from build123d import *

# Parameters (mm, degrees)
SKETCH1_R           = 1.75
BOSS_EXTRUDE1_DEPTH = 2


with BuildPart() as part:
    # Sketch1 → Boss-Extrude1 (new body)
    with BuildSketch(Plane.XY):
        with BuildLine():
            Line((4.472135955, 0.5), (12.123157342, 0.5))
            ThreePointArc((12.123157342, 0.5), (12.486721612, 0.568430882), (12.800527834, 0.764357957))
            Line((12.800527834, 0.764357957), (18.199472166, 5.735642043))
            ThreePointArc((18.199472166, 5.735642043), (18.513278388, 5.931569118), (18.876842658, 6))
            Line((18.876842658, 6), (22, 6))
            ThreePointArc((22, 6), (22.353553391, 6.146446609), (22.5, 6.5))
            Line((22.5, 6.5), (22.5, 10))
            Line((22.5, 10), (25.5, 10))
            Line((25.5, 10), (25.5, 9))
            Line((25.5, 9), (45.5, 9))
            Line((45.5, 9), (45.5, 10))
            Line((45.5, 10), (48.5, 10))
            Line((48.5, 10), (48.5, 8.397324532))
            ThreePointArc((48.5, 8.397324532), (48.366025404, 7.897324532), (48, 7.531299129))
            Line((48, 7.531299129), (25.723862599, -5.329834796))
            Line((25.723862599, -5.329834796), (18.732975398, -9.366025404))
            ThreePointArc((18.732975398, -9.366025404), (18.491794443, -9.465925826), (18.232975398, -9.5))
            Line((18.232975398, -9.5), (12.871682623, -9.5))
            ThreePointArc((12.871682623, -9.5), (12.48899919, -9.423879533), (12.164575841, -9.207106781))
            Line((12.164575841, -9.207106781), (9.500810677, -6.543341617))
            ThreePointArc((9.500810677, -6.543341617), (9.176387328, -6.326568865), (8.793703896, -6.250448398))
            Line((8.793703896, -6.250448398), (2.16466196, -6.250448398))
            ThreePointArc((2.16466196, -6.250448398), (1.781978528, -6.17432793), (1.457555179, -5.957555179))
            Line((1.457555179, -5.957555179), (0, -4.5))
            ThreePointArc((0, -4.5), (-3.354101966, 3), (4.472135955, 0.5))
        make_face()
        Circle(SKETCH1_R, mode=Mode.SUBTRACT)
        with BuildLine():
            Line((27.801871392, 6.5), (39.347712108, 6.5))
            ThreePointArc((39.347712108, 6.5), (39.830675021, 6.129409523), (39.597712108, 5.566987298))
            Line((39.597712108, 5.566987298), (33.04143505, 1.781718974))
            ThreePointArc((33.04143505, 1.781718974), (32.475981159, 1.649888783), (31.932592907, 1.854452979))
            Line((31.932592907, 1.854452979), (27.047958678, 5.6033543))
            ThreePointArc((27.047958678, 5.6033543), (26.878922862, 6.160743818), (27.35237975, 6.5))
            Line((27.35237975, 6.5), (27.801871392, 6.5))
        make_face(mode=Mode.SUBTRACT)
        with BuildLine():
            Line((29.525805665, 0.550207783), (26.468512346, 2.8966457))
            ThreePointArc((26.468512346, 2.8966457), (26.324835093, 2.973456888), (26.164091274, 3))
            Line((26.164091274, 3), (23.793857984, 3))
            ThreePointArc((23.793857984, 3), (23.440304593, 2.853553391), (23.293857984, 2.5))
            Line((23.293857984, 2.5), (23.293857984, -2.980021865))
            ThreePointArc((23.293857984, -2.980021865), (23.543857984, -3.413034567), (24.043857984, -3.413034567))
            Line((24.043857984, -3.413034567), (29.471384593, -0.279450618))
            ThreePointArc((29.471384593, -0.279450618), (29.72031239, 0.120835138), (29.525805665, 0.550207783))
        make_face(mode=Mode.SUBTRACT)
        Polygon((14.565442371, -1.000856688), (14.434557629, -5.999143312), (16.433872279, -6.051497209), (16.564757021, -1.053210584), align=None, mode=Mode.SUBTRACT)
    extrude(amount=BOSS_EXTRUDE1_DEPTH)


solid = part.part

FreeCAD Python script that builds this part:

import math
import FreeCAD as App
import Part
import Sketcher
Q = App.Units.Quantity


def add_polygon(sketch, points):
    """Adds a closed chain of lines whose ends are joined by coincident constraints."""
    first, n = sketch.GeometryCount, len(points)
    for a, b in zip(points, points[1:] + points[:1]):
        sketch.addGeometry(Part.LineSegment(App.Vector(*a, 0), App.Vector(*b, 0)), False)
    for i in range(n):
        sketch.addConstraint(Sketcher.Constraint("Coincident", first + i, 2, first + (i + 1) % n, 1))

doc = App.newDocument("Part")
body = doc.addObject("PartDesign::Body", "Body")

# Sketch on XY plane
sketch1 = body.newObject("Sketcher::SketchObject", "Sketch")
sketch1.AttachmentSupport = (doc.getObject("XY_Plane"), [""])
sketch1.MapMode = "FlatFace"
sketch1.addGeometry(Part.LineSegment(App.Vector(12.12, 0.5, 0), App.Vector(4.47, 0.5, 0)), False)  # 0
sketch1.addGeometry(Part.ArcOfCircle(Part.Circle(App.Vector(0, 0, 0), App.Vector(0, 0, 1), 4.5), math.radians(6), math.radians(270)), False)  # 1
sketch1.addGeometry(Part.LineSegment(App.Vector(0, -4.5, 0), App.Vector(1.46, -5.96, 0)), False)  # 2
sketch1.addGeometry(Part.ArcOfCircle(Part.Circle(App.Vector(2.16, -5.25, 0), App.Vector(0, 0, 1), 1), math.radians(-135), math.radians(-90)), False)  # 3
sketch1.addGeometry(Part.LineSegment(App.Vector(2.16, -6.25, 0), App.Vector(8.79, -6.25, 0)), False)  # 4
sketch1.addGeometry(Part.ArcOfCircle(Part.Circle(App.Vector(8.79, -7.25, 0), App.Vector(0, 0, 1), 1), math.radians(45), math.radians(90)), False)  # 5
sketch1.addGeometry(Part.LineSegment(App.Vector(9.5, -6.54, 0), App.Vector(12.16, -9.21, 0)), False)  # 6
sketch1.addGeometry(Part.ArcOfCircle(Part.Circle(App.Vector(12.87, -8.5, 0), App.Vector(0, 0, 1), 1), math.radians(-135), math.radians(-90)), False)  # 7
sketch1.addGeometry(Part.LineSegment(App.Vector(12.87, -9.5, 0), App.Vector(18.23, -9.5, 0)), False)  # 8
sketch1.addGeometry(Part.ArcOfCircle(Part.Circle(App.Vector(18.23, -8.5, 0), App.Vector(0, 0, 1), 1), math.radians(-90), math.radians(-60)), False)  # 9
sketch1.addGeometry(Part.LineSegment(App.Vector(18.73, -9.37, 0), App.Vector(25.72, -5.33, 0)), False)  # 10
sketch1.addGeometry(Part.LineSegment(App.Vector(25.72, -5.33, 0), App.Vector(48, 7.53, 0)), False)  # 11
sketch1.addGeometry(Part.ArcOfCircle(Part.Circle(App.Vector(47.5, 8.4, 0), App.Vector(0, 0, 1), 1), math.radians(-60), math.radians(0)), False)  # 12
sketch1.addGeometry(Part.LineSegment(App.Vector(48.5, 8.4, 0), App.Vector(48.5, 10, 0)), False)  # 13
sketch1.addGeometry(Part.LineSegment(App.Vector(48.5, 10, 0), App.Vector(45.5, 10, 0)), False)  # 14
sketch1.addGeometry(Part.LineSegment(App.Vector(45.5, 10, 0), App.Vector(45.5, 9, 0)), False)  # 15
sketch1.addGeometry(Part.LineSegment(App.Vector(45.5, 9, 0), App.Vector(25.5, 9, 0)), False)  # 16
sketch1.addGeometry(Part.LineSegment(App.Vector(25.5, 9, 0), App.Vector(25.5, 10, 0)), False)  # 17
sketch1.addGeometry(Part.LineSegment(App.Vector(25.5, 10, 0), App.Vector(22.5, 10, 0)), False)  # 18
sketch1.addGeometry(Part.LineSegment(App.Vector(22.5, 10, 0), App.Vector(22.5, 6.5, 0)), False)  # 19
sketch1.addGeometry(Part.ArcOfCircle(Part.Circle(App.Vector(22, 6.5, 0), App.Vector(0, 0, 1), 0.5), math.radians(-90), math.radians(0)), False)  # 20
sketch1.addGeometry(Part.LineSegment(App.Vector(22, 6, 0), App.Vector(18.88, 6, 0)), False)  # 21
sketch1.addGeometry(Part.ArcOfCircle(Part.Circle(App.Vector(18.88, 5, 0), App.Vector(0, 0, 1), 1), math.radians(90), math.radians(133)), False)  # 22
sketch1.addGeometry(Part.LineSegment(App.Vector(18.2, 5.74, 0), App.Vector(12.8, 0.76, 0)), False)  # 23
sketch1.addGeometry(Part.ArcOfCircle(Part.Circle(App.Vector(12.12, 1.5, 0), App.Vector(0, 0, 1), 1), math.radians(-90), math.radians(-47)), False)  # 24
sketch1.addGeometry(Part.ArcOfCircle(Part.Circle(App.Vector(29.22, 0.15, 0), App.Vector(0, 0, 1), 0.5), math.radians(-60), math.radians(52)), False)  # 25
sketch1.addGeometry(Part.LineSegment(App.Vector(29.47, -0.28, 0), App.Vector(24.04, -3.41, 0)), False)  # 26
sketch1.addGeometry(Part.ArcOfCircle(Part.Circle(App.Vector(23.79, -2.98, 0), App.Vector(0, 0, 1), 0.5), math.radians(180), math.radians(300)), False)  # 27
sketch1.addGeometry(Part.LineSegment(App.Vector(23.29, -2.98, 0), App.Vector(23.29, 2.5, 0)), False)  # 28
sketch1.addGeometry(Part.ArcOfCircle(Part.Circle(App.Vector(23.79, 2.5, 0), App.Vector(0, 0, 1), 0.5), math.radians(90), math.radians(180)), False)  # 29
sketch1.addGeometry(Part.LineSegment(App.Vector(23.79, 3, 0), App.Vector(26.16, 3, 0)), False)  # 30
sketch1.addGeometry(Part.ArcOfCircle(Part.Circle(App.Vector(26.16, 2.5, 0), App.Vector(0, 0, 1), 0.5), math.radians(52), math.radians(90)), False)  # 31
sketch1.addGeometry(Part.LineSegment(App.Vector(26.47, 2.9, 0), App.Vector(29.53, 0.55, 0)), False)  # 32
add_polygon(sketch1, [(14.57, -1), (16.56, -1.05), (16.43, -6.05), (14.43, -6)])  # lines 33-36
sketch1.addGeometry(Part.Circle(App.Vector(0, 0, 0), App.Vector(0, 0, 1), 1.75), False)  # 37
sketch1.addGeometry(Part.ArcOfCircle(Part.Circle(App.Vector(39.35, 6, 0), App.Vector(0, 0, 1), 0.5), math.radians(-60), math.radians(90)), False)  # 38
sketch1.addGeometry(Part.LineSegment(App.Vector(39.6, 5.57, 0), App.Vector(33.04, 1.78, 0)), False)  # 39
sketch1.addGeometry(Part.ArcOfCircle(Part.Circle(App.Vector(32.54, 2.65, 0), App.Vector(0, 0, 1), 1), math.radians(-128), math.radians(-60)), False)  # 40
sketch1.addGeometry(Part.LineSegment(App.Vector(31.93, 1.85, 0), App.Vector(27.05, 5.6, 0)), False)  # 41
sketch1.addGeometry(Part.ArcOfCircle(Part.Circle(App.Vector(27.35, 6, 0), App.Vector(0, 0, 1), 0.5), math.radians(90), math.radians(232)), False)  # 42
sketch1.addGeometry(Part.LineSegment(App.Vector(27.35, 6.5, 0), App.Vector(39.35, 6.5, 0)), False)  # 43
sketch1.addConstraint([
    Sketcher.Constraint("Coincident", 0, 2, 1, 1),
    Sketcher.Constraint("Coincident", 1, 2, 2, 1),
    Sketcher.Constraint("Tangent", 2, 2, 3, 1),
    Sketcher.Constraint("Tangent", 3, 2, 4, 1),
    Sketcher.Constraint("Tangent", 4, 2, 5, 2),
    Sketcher.Constraint("Tangent", 5, 1, 6, 1),
    Sketcher.Constraint("Tangent", 6, 2, 7, 1),
    Sketcher.Constraint("Tangent", 7, 2, 8, 1),
    Sketcher.Constraint("Tangent", 8, 2, 9, 1),
    Sketcher.Constraint("Tangent", 9, 2, 10, 1),
    Sketcher.Constraint("Coincident", 10, 2, 11, 1),
    Sketcher.Constraint("Tangent", 11, 2, 12, 1),
    Sketcher.Constraint("Tangent", 12, 2, 13, 1),
    Sketcher.Constraint("Coincident", 13, 2, 14, 1),
    Sketcher.Constraint("Coincident", 14, 2, 15, 1),
    Sketcher.Constraint("Coincident", 15, 2, 16, 1),
    Sketcher.Constraint("Coincident", 16, 2, 17, 1),
    Sketcher.Constraint("Coincident", 17, 2, 18, 1),
    Sketcher.Constraint("Coincident", 18, 2, 19, 1),
    Sketcher.Constraint("Tangent", 19, 2, 20, 2),
    Sketcher.Constraint("Tangent", 20, 1, 21, 1),
    Sketcher.Constraint("Tangent", 21, 2, 22, 1),
    Sketcher.Constraint("Tangent", 22, 2, 23, 1),
    Sketcher.Constraint("Tangent", 23, 2, 24, 2),
    Sketcher.Constraint("Tangent", 24, 1, 0, 1),
    Sketcher.Constraint("Tangent", 25, 1, 26, 1),
    Sketcher.Constraint("Tangent", 26, 2, 27, 2),
    Sketcher.Constraint("Tangent", 27, 1, 28, 1),
    Sketcher.Constraint("Tangent", 28, 2, 29, 2),
    Sketcher.Constraint("Tangent", 29, 1, 30, 1),
    Sketcher.Constraint("Tangent", 30, 2, 31, 2),
    Sketcher.Constraint("Tangent", 31, 1, 32, 1),
    Sketcher.Constraint("Tangent", 32, 2, 25, 2),
    Sketcher.Constraint("Tangent", 38, 1, 39, 1),
    Sketcher.Constraint("Tangent", 39, 2, 40, 2),
    Sketcher.Constraint("Tangent", 40, 1, 41, 1),
    Sketcher.Constraint("Tangent", 41, 2, 42, 2),
    Sketcher.Constraint("Tangent", 42, 1, 43, 1),
    Sketcher.Constraint("Tangent", 43, 2, 38, 2),
    Sketcher.Constraint("Horizontal", 0),
    Sketcher.Constraint("Horizontal", 4),
    Sketcher.Constraint("Horizontal", 8),
    Sketcher.Constraint("Vertical", 13),
    Sketcher.Constraint("Horizontal", 14),
    Sketcher.Constraint("Vertical", 15),
    Sketcher.Constraint("Horizontal", 16),
    Sketcher.Constraint("Vertical", 17),
    Sketcher.Constraint("Horizontal", 18),
    Sketcher.Constraint("Vertical", 19),
    Sketcher.Constraint("Horizontal", 21),
    Sketcher.Constraint("Vertical", 28),
    Sketcher.Constraint("Horizontal", 30),
    Sketcher.Constraint("Horizontal", 43),
    Sketcher.Constraint("Coincident", 1, 3, -1, 1),
    Sketcher.Constraint("Coincident", 37, 3, -1, 1),
    Sketcher.Constraint("Equal", 3, 5),
    Sketcher.Constraint("Equal", 5, 7),
    Sketcher.Constraint("Equal", 7, 9),
    Sketcher.Constraint("Equal", 9, 12),
    Sketcher.Constraint("Equal", 12, 22),
    Sketcher.Constraint("Equal", 22, 24),
    Sketcher.Constraint("Equal", 20, 25),
    Sketcher.Constraint("Equal", 25, 27),
    Sketcher.Constraint("Equal", 27, 29),
    Sketcher.Constraint("Equal", 29, 31),
    Sketcher.Constraint("Equal", 31, 38),
    Sketcher.Constraint("Equal", 24, 40),
    Sketcher.Constraint("Equal", 38, 42),
    Sketcher.Constraint("PointOnObject", 1, 2, -2),
    Sketcher.Constraint("Parallel", 2, 6),
    Sketcher.Constraint("Parallel", 10, 11),
    Sketcher.Constraint("Parallel", 11, 26),
    Sketcher.Constraint("Perpendicular", 33, 34),
    Sketcher.Constraint("Perpendicular", 34, 35),
    Sketcher.Constraint("Perpendicular", 35, 36),
    Sketcher.Constraint("Parallel", 26, 39),
    Sketcher.Constraint("Parallel", 32, 41),
    Sketcher.Constraint("Horizontal", 14, 2, 17, 2),
    Sketcher.Constraint("Horizontal", 42, 3, 20, 1),
    Sketcher.Constraint("Equal", 14, 18),
    Sketcher.Constraint("Radius", 3, Q("1 mm")),
    Sketcher.Constraint("Diameter", 37, Q("3.5 mm")),
    Sketcher.Constraint("Radius", 1, Q("4.5 mm")),
    Sketcher.Constraint("Radius", 20, Q("0.5 mm")),
    Sketcher.Constraint("DistanceX", 14, 2, 14, 1, Q("3 mm")),
    Sketcher.Constraint("DistanceX", 16, 2, 16, 1, Q("20 mm")),
    Sketcher.Constraint("DistanceY", 15, 2, 15, 1, Q("1 mm")),
    Sketcher.Constraint("Angle", 2, Q("-45 deg")),
    Sketcher.Constraint("Angle", 10, Q("30 deg")),
    Sketcher.Constraint("Distance", 33, Q("2 mm")),
    Sketcher.Constraint("Distance", 34, Q("5 mm")),
    Sketcher.Constraint("DistanceY", 19, 2, 19, 1, Q("3.5 mm")),
    Sketcher.Constraint("DistanceX", -1, 1, 20, 3, Q("22 mm")),
    Sketcher.Constraint("DistanceY", -1, 1, 22, 3, Q("5 mm")),
    Sketcher.Constraint("DistanceY", -1, 1, 29, 1, Q("3 mm")),
    Sketcher.Constraint("Angle", 33, Q("-1.5 deg")),
    Sketcher.Constraint("DistanceY", 9, 3, 20, 3, Q("15 mm")),
    Sketcher.Constraint("DistanceY", 7, 3, 24, 3, Q("10 mm")),
    Sketcher.Constraint("DistanceX", 0, 2, 0, 1, Q("7.651021 mm")),
    Sketcher.Constraint("DistanceX", 4, 1, 4, 2, Q("6.629042 mm")),
    Sketcher.Constraint("DistanceY", 28, 1, 28, 2, Q("5.480022 mm")),
    Sketcher.Constraint("DistanceY", -1, 1, 11, 2, Q("7.531299 mm")),
    Sketcher.Constraint("DistanceX", 7, 3, 25, 3, Q("16.349702 mm")),
    Sketcher.Constraint("DistanceX", 24, 3, 29, 3, Q("11.670701 mm")),
    Sketcher.Constraint("DistanceY", 5, 1, 23, 2, Q("7.3077 mm")),
    Sketcher.Constraint("DistanceY", 10, 2, 26, 2, Q("1.9168 mm")),
    Sketcher.Constraint("DistanceX", 24, 1, 33, 2, Q("4.4416 mm")),
    Sketcher.Constraint("Distance", 23, Q("7.339092 mm")),
    Sketcher.Constraint("DistanceX", 30, 1, 30, 2, Q("2.370233 mm")),
    Sketcher.Constraint("DistanceX", 43, 1, 43, 2, Q("11.995332 mm")),
    Sketcher.Constraint("DistanceX", -1, 1, 42, 3, Q("27.35238 mm")),
    Sketcher.Constraint("DistanceY", 33, 2, -1, 1, Q("1.053211 mm")),
])
pad1 = body.newObject("PartDesign::Pad", "Pad")
pad1.Profile = sketch1
pad1.Length = 2

doc.recompute()
